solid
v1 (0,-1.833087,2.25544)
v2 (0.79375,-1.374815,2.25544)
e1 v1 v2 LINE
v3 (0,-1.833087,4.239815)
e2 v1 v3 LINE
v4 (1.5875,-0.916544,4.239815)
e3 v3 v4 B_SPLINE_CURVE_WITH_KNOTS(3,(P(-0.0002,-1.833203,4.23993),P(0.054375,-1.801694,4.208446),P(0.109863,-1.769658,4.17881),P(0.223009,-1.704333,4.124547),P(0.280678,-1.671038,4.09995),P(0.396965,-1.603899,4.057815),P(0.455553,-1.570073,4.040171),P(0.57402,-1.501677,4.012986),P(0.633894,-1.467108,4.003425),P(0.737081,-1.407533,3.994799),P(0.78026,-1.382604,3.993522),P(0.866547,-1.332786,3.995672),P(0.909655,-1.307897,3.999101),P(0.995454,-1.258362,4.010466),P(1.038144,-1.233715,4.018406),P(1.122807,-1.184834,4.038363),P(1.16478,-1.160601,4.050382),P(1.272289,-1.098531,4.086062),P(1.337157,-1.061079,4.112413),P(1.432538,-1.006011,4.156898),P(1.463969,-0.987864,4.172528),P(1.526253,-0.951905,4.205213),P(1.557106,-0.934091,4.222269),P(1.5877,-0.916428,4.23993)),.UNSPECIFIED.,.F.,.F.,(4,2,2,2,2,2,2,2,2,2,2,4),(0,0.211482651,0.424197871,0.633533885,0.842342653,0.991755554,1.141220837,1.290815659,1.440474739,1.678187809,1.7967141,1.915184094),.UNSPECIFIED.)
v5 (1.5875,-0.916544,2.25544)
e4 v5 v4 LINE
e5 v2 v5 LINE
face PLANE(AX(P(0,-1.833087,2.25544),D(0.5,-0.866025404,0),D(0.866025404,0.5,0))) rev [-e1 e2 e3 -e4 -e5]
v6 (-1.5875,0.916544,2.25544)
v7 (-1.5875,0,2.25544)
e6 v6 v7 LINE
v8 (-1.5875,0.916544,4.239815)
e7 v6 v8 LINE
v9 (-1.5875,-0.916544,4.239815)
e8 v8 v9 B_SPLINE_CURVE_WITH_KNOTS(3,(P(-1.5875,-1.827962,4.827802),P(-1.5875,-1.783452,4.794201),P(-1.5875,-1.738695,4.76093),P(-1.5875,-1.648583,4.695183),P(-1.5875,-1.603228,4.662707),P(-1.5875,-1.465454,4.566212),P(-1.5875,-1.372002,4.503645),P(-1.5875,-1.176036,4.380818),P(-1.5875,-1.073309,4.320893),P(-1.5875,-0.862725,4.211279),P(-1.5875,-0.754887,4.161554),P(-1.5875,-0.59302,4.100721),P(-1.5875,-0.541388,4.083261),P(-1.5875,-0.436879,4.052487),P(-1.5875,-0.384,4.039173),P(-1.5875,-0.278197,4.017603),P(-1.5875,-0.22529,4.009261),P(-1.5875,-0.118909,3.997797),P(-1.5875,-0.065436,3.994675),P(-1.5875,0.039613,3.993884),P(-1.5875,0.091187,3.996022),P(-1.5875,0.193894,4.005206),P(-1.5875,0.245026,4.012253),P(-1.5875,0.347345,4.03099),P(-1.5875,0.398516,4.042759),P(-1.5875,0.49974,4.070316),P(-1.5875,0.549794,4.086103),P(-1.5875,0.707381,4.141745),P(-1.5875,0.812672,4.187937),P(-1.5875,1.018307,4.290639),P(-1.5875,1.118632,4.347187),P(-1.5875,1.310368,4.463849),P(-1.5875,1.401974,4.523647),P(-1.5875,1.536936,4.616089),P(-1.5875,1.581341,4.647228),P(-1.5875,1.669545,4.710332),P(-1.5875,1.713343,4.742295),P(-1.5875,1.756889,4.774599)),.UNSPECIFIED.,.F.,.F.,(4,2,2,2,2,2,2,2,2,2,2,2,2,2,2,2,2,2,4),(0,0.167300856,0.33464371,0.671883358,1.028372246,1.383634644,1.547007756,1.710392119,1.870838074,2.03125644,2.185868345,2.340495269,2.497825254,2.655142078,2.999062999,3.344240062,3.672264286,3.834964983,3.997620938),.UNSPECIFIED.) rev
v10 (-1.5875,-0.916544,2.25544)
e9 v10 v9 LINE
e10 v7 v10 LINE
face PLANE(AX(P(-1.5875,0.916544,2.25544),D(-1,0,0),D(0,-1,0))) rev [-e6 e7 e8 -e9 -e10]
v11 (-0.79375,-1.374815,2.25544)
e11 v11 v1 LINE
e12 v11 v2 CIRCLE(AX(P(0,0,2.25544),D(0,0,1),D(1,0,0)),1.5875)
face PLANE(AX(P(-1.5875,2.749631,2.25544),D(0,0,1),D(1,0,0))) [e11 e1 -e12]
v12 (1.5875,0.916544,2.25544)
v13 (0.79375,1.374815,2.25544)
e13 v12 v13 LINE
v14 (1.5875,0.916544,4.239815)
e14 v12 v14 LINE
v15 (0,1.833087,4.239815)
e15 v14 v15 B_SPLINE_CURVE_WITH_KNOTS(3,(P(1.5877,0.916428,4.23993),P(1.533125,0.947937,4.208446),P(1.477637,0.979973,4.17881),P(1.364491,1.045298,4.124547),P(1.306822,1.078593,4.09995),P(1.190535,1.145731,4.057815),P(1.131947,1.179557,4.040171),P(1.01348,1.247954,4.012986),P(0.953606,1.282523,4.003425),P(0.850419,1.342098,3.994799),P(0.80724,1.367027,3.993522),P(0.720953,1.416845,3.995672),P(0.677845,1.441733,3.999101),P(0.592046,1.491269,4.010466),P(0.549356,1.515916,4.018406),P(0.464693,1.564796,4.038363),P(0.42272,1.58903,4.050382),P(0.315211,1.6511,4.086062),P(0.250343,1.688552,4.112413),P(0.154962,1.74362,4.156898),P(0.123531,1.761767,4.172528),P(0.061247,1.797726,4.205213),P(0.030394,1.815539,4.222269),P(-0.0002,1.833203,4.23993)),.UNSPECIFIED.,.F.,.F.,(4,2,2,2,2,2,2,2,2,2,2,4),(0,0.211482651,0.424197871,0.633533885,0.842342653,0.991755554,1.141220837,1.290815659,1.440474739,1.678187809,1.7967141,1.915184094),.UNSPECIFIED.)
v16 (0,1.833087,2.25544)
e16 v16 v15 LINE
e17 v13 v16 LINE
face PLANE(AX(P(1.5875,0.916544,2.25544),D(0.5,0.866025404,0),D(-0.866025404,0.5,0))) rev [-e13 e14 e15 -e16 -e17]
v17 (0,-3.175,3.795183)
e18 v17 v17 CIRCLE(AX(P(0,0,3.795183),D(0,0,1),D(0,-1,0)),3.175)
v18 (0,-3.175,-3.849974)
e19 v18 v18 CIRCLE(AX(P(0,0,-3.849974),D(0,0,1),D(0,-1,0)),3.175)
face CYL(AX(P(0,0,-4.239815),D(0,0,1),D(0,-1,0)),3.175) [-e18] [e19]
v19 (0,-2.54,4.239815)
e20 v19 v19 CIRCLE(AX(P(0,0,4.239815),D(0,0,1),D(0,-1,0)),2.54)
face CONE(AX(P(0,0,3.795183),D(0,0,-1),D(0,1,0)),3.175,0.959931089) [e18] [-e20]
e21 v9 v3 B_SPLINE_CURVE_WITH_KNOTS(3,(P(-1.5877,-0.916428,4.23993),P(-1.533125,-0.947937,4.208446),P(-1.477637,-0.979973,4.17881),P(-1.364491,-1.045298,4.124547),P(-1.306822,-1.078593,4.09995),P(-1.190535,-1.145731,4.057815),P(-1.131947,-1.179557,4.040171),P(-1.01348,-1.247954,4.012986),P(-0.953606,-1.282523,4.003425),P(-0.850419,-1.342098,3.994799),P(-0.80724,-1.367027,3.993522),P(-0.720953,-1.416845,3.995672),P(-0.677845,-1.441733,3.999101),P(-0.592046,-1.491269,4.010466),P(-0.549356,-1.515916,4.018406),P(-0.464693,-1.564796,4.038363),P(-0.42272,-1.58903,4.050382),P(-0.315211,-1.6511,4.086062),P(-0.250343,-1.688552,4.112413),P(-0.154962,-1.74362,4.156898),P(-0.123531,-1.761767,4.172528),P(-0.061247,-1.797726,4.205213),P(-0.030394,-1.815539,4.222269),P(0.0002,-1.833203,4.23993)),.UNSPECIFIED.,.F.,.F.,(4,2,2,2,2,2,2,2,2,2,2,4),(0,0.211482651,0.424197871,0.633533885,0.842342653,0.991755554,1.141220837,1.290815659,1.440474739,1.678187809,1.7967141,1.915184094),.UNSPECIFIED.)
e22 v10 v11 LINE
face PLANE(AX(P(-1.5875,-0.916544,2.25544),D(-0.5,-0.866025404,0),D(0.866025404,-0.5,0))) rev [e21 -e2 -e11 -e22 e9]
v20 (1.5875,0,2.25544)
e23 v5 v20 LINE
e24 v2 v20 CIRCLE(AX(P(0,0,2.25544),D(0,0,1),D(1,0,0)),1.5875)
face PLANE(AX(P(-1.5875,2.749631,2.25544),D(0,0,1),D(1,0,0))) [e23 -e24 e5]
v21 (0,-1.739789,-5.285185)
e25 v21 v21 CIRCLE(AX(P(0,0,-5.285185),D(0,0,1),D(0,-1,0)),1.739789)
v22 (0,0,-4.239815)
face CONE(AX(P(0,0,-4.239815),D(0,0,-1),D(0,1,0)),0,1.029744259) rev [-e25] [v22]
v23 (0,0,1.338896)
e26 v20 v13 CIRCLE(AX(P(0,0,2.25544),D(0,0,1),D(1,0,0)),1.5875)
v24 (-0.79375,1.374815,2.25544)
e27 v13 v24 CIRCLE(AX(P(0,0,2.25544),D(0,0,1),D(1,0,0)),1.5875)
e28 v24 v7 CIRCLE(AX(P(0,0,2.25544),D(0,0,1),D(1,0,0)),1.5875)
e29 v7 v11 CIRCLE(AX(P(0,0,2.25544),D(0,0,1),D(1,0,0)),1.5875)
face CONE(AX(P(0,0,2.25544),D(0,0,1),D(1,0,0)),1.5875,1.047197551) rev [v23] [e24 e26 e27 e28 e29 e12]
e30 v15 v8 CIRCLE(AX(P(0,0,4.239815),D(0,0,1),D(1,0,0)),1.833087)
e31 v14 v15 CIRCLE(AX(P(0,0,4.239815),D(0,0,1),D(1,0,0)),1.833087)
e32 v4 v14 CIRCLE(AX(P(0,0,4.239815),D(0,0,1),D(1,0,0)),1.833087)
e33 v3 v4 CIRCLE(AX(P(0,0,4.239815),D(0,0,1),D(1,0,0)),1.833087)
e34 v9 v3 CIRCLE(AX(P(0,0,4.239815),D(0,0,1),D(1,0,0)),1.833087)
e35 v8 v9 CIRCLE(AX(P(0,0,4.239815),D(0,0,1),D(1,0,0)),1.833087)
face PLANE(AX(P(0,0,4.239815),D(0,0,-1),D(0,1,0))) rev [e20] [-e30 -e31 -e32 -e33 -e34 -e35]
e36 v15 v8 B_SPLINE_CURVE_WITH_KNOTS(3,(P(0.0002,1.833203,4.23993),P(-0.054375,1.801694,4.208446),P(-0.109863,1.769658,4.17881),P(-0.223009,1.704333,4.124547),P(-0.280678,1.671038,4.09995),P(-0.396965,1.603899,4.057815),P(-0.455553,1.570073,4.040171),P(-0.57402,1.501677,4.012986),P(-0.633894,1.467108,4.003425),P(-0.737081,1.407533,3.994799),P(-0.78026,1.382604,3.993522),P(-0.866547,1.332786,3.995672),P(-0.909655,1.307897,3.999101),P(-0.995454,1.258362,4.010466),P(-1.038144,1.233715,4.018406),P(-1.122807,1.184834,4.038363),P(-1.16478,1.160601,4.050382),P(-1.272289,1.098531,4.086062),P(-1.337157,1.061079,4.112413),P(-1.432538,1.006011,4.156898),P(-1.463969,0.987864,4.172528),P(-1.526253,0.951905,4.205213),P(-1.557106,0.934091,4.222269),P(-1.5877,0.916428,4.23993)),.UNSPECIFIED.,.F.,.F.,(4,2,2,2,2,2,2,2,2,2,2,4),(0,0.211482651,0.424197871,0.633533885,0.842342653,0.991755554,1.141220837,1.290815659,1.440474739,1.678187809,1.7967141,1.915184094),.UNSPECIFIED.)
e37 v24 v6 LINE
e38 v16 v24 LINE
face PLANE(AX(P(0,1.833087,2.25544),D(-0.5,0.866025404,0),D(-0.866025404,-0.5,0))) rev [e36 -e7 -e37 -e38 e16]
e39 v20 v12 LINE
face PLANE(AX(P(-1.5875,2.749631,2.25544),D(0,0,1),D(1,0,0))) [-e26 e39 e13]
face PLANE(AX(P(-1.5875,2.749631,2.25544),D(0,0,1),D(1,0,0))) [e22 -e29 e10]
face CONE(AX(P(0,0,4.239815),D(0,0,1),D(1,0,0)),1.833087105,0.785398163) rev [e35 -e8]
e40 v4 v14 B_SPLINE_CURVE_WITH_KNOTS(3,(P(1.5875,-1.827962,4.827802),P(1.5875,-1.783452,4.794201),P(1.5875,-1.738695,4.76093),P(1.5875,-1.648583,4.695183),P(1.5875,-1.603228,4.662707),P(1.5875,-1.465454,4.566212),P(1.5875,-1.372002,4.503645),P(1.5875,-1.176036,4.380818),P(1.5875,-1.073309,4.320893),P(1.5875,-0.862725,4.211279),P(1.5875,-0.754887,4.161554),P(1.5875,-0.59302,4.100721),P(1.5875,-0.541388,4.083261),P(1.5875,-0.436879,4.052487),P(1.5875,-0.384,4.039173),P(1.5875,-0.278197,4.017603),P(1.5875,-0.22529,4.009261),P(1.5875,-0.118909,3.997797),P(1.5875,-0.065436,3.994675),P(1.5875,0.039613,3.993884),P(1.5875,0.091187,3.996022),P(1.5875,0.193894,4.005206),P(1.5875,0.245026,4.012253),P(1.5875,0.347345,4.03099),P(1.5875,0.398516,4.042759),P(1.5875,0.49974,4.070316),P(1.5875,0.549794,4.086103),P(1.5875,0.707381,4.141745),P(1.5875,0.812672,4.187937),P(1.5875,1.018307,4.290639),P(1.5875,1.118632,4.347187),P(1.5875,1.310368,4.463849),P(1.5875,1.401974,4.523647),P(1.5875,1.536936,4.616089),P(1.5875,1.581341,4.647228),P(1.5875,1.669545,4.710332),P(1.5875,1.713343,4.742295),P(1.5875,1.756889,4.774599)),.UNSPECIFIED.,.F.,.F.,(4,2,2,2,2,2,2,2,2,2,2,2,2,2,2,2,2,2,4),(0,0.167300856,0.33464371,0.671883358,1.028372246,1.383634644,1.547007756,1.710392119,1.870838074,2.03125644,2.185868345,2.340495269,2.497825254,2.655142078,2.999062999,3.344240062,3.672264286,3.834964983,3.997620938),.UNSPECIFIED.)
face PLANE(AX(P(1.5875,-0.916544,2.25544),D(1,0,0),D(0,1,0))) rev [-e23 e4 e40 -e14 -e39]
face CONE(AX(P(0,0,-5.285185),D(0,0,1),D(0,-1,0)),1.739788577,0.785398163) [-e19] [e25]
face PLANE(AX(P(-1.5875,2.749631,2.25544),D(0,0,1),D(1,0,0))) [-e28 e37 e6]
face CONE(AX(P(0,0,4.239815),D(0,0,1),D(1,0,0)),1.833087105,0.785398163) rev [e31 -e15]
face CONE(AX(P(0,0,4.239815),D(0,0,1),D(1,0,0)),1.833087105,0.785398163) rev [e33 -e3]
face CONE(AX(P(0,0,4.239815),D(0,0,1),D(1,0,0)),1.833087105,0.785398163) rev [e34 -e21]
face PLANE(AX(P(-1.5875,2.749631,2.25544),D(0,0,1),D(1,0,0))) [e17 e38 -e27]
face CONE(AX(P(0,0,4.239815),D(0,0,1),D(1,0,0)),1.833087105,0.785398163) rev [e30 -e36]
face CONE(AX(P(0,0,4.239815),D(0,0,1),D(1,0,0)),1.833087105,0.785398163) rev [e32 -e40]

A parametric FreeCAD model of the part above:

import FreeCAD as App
import Part
import Sketcher
from FreeCAD import Vector
Q = App.Units.Quantity

doc = App.newDocument("Part")
body = doc.addObject("PartDesign::Body", "Body")

sketch1 = body.newObject("Sketcher::SketchObject", "Sketch")
sketch1.AttachmentSupport = (doc.getObject("YZ_Plane"), [""])
sketch1.MapMode = "FlatFace"
sketch1.addGeometry(Part.LineSegment(Vector(2.54, 4.239815, 0), Vector(0, 4.239815, 0)), False)
sketch1.addGeometry(Part.LineSegment(Vector(0, 4.239815, 0), Vector(0, -4.239815, 0)), False)
sketch1.addGeometry(Part.LineSegment(Vector(0, -4.239815, 0), Vector(1.739789, -5.285185, 0)), False)
sketch1.addGeometry(Part.LineSegment(Vector(1.739789, -5.285185, 0), Vector(3.175, -3.849974, 0)), False)
sketch1.addGeometry(Part.LineSegment(Vector(3.175, -3.849974, 0), Vector(3.175, 3.795183, 0)), False)
sketch1.addGeometry(Part.LineSegment(Vector(3.175, 3.795183, 0), Vector(2.54, 4.239815, 0)), False)
sketch1.addConstraint(Sketcher.Constraint("Coincident", 0, 2, 1, 1))
sketch1.addConstraint(Sketcher.Constraint("Coincident", 1, 2, 2, 1))
sketch1.addConstraint(Sketcher.Constraint("Coincident", 2, 2, 3, 1))
sketch1.addConstraint(Sketcher.Constraint("Coincident", 3, 2, 4, 1))
sketch1.addConstraint(Sketcher.Constraint("Coincident", 4, 2, 5, 1))
sketch1.addConstraint(Sketcher.Constraint("Coincident", 5, 2, 0, 1))
sketch1.addConstraint(Sketcher.Constraint("Horizontal", 0))
sketch1.addConstraint(Sketcher.Constraint("Vertical", 1))
sketch1.addConstraint(Sketcher.Constraint("Vertical", 4))
sketch1.addConstraint(Sketcher.Constraint("Symmetric", 0, 2, 1, 2, -1, 1))
sketch1.addConstraint(Sketcher.Constraint("Equal", 2, 3))
sketch1.addConstraint(Sketcher.Constraint("DistanceX", 0, 2, 0, 1, Q("0.1 in")))
sketch1.addConstraint(Sketcher.Constraint("Angle", 2, Q("-31 deg")))
sketch1.addConstraint(Sketcher.Constraint("Angle", 3, Q("45 deg")))
sketch1.addConstraint(Sketcher.Constraint("Angle", 5, Q("145 deg")))
sketch1.addConstraint(Sketcher.Constraint("DistanceX", -1, 1, 3, 2, Q("0.125 in")))
sketch1.addConstraint(Sketcher.Constraint("DistanceY", 2, 2, 0, 2, Q("0.375 in")))
revolution = body.newObject("PartDesign::Revolution", "Revolution")
revolution.Profile = sketch1
revolution.ReferenceAxis = (sketch1, ["V_Axis"])
revolution.Angle = 360

sketch2 = body.newObject("Sketcher::SketchObject", "Sketch001")
sketch2.AttachmentSupport = (doc.getObject("XY_Plane"), [""])
sketch2.MapMode = "FlatFace"
sketch2.AttachmentOffset = App.Placement(Vector(0, 0, 4.239815), App.Rotation())
sketch2.addGeometry(Part.LineSegment(Vector(0, 1.833087, 0), Vector(-1.5875, 0.916544, 0)), False)
sketch2.addGeometry(Part.LineSegment(Vector(-1.5875, 0.916544, 0), Vector(-1.5875, -0.916544, 0)), False)
sketch2.addGeometry(Part.LineSegment(Vector(-1.5875, -0.916544, 0), Vector(0, -1.833087, 0)), False)
sketch2.addGeometry(Part.LineSegment(Vector(0, -1.833087, 0), Vector(1.5875, -0.916544, 0)), False)
sketch2.addGeometry(Part.LineSegment(Vector(1.5875, -0.916544, 0), Vector(1.5875, 0.916544, 0)), False)
sketch2.addGeometry(Part.LineSegment(Vector(1.5875, 0.916544, 0), Vector(0, 1.833087, 0)), False)
sketch2.addConstraint(Sketcher.Constraint("Coincident", 0, 2, 1, 1))
sketch2.addConstraint(Sketcher.Constraint("Coincident", 1, 2, 2, 1))
sketch2.addConstraint(Sketcher.Constraint("Coincident", 2, 2, 3, 1))
sketch2.addConstraint(Sketcher.Constraint("Coincident", 3, 2, 4, 1))
sketch2.addConstraint(Sketcher.Constraint("Coincident", 4, 2, 5, 1))
sketch2.addConstraint(Sketcher.Constraint("Coincident", 5, 2, 0, 1))
sketch2.addConstraint(Sketcher.Constraint("Vertical", 1))
sketch2.addConstraint(Sketcher.Constraint("Vertical", 4))
sketch2.addConstraint(Sketcher.Constraint("Symmetric", 0, 2, 3, 2, -1, 1))
sketch2.addConstraint(Sketcher.Constraint("Symmetric", 2, 2, 5, 2, -1, 1))
sketch2.addConstraint(Sketcher.Constraint("PointOnObject", 2, 2, -2))
sketch2.addConstraint(Sketcher.Constraint("Parallel", 2, 5))
sketch2.addConstraint(Sketcher.Constraint("Horizontal", 1, 2, 3, 2))
sketch2.addConstraint(Sketcher.Constraint("Angle", 0, Q("-150 deg")))
sketch2.addConstraint(Sketcher.Constraint("DistanceX", 0, 2, -1, 1, Q("0.0625 in")))
sketch2.addConstraint(Sketcher.Constraint("DistanceY", 1, 2, 1, 1, Q("1.833087 mm")))
pocket1 = body.newObject("PartDesign::Pocket", "Pocket")
pocket1.Profile = sketch2
pocket1.Length = Q("0.078125 in")

sketch3 = body.newObject("Sketcher::SketchObject", "Sketch002")
sketch3.AttachmentSupport = (doc.getObject("YZ_Plane"), [""])
sketch3.MapMode = "FlatFace"
sketch3.addGeometry(Part.LineSegment(Vector(0, 4.239815, 0), Vector(-1.833087, 4.239815, 0)), False)
sketch3.addGeometry(Part.LineSegment(Vector(-1.833087, 4.239815, 0), Vector(0, 2.406728, 0)), False)
sketch3.addGeometry(Part.LineSegment(Vector(0, 2.406728, 0), Vector(0, 4.239815, 0)), False)
sketch3.addConstraint(Sketcher.Constraint("Coincident", 0, 2, 1, 1))
sketch3.addConstraint(Sketcher.Constraint("Coincident", 1, 2, 2, 1))
sketch3.addConstraint(Sketcher.Constraint("Coincident", 2, 2, 0, 1))
sketch3.addConstraint(Sketcher.Constraint("Horizontal", 0))
sketch3.addConstraint(Sketcher.Constraint("Vertical", 2))
sketch3.addConstraint(Sketcher.Constraint("PointOnObject", 1, 2, -2))
sketch3.addConstraint(Sketcher.Constraint("Equal", 0, 2))
sketch3.addConstraint(Sketcher.Constraint("DistanceX", 0, 2, 0, 1, Q("1.833087 mm")))
sketch3.addConstraint(Sketcher.Constraint("DistanceY", -1, 1, 0, 2, Q("4.239815 mm")))
groove = body.newObject("PartDesign::Groove", "Groove")
groove.Profile = sketch3
groove.ReferenceAxis = (sketch3, ["V_Axis"])
groove.Angle = 360

sketch4 = body.newObject("Sketcher::SketchObject", "Sketch003")
sketch4.AttachmentSupport = (doc.getObject("YZ_Plane"), [""])
sketch4.MapMode = "FlatFace"
sketch4.addGeometry(Part.LineSegment(Vector(0, 2.25544, 0), Vector(-1.5875, 2.25544, 0)), False)
sketch4.addGeometry(Part.LineSegment(Vector(-1.5875, 2.25544, 0), Vector(0, 1.338896, 0)), False)
sketch4.addGeometry(Part.LineSegment(Vector(0, 1.338896, 0), Vector(0, 2.25544, 0)), False)
sketch4.addConstraint(Sketcher.Constraint("Coincident", 0, 2, 1, 1))
sketch4.addConstraint(Sketcher.Constraint("Coincident", 1, 2, 2, 1))
sketch4.addConstraint(Sketcher.Constraint("Coincident", 2, 2, 0, 1))
sketch4.addConstraint(Sketcher.Constraint("Horizontal", 0))
sketch4.addConstraint(Sketcher.Constraint("Vertical", 2))
sketch4.addConstraint(Sketcher.Constraint("PointOnObject", 1, 2, -2))
sketch4.addConstraint(Sketcher.Constraint("Angle", 1, Q("-30 deg")))
sketch4.addConstraint(Sketcher.Constraint("DistanceX", 0, 2, 0, 1, Q("0.0625 in")))
sketch4.addConstraint(Sketcher.Constraint("DistanceY", -1, 1, 0, 2, Q("2.25544 mm")))
groove2 = body.newObject("PartDesign::Groove", "Groove001")
groove2.Profile = sketch4
groove2.ReferenceAxis = (sketch4, ["V_Axis"])
groove2.Angle = 360

doc.recompute()
